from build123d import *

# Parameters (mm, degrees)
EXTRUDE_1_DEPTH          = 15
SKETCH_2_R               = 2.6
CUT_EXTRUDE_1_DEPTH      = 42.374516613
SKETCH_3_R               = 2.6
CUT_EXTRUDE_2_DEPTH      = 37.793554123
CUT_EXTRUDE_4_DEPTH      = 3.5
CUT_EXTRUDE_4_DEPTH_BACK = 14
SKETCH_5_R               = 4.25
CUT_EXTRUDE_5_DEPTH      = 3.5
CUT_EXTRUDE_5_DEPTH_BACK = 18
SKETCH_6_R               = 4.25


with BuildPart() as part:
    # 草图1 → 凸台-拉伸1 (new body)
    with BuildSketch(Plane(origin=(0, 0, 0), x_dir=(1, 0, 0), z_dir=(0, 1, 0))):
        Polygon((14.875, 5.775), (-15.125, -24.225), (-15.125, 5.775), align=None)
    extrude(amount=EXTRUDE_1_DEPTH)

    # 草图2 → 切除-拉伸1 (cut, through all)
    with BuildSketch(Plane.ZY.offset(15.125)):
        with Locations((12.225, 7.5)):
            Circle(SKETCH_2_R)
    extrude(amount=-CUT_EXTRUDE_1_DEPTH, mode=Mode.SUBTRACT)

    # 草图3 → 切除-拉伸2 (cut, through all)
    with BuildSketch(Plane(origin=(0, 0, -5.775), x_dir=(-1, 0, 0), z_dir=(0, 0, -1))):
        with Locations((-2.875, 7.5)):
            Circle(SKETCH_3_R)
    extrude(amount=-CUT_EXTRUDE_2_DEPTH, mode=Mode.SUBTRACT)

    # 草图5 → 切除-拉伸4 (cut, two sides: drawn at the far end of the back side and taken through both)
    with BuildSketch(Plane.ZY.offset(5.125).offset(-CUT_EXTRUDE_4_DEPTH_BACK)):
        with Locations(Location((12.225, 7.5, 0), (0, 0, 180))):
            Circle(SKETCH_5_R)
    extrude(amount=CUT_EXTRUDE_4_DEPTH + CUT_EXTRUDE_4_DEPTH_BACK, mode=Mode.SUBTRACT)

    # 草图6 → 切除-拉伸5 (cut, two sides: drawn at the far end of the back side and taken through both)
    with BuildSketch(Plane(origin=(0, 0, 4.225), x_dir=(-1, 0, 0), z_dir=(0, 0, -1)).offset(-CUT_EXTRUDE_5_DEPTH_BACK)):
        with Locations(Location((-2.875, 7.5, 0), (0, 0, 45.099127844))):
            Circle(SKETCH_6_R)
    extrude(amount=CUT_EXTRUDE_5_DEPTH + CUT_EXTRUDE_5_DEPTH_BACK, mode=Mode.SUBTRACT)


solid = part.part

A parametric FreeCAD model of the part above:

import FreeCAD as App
import Part
import Sketcher

V = App.Vector


def add_polygon(sketch, points):
    """Adds a closed chain of lines whose ends are joined by coincident constraints."""
    first, n = sketch.GeometryCount, len(points)
    for a, b in zip(points, points[1:] + points[:1]):
        sketch.addGeometry(Part.LineSegment(App.Vector(*a, 0), App.Vector(*b, 0)), False)
    for i in range(n):
        sketch.addConstraint(Sketcher.Constraint("Coincident", first + i, 2, first + (i + 1) % n, 1))

doc = App.newDocument("Part")
body = doc.addObject("PartDesign::Body", "Body")

# Sketch on XZ plane
sketch1 = doc.addObject("Sketcher::SketchObject", "Sketch")
body.addObject(sketch1)
sketch1.AttachmentSupport = (doc.XZ_Plane, [""])
sketch1.MapMode = "FlatFace"
add_polygon(sketch1, [(-15, 24), (15, -6), (-15, -6)])  # lines 0-2
sketch1.addConstraint(Sketcher.Constraint("Horizontal", 1))
sketch1.addConstraint(Sketcher.Constraint("Vertical", 2))
sketch1.addConstraint(Sketcher.Constraint("Equal", 1, 2))
sketch1.addConstraint(Sketcher.Constraint("DistanceX", 1, 2, 1, 1, 30.0))
sketch1.addConstraint(Sketcher.Constraint("DistanceX", -1, 1, 0, 2, 14.875))
sketch1.addConstraint(Sketcher.Constraint("DistanceY", 0, 2, -1, 1, 5.775))
pad1 = doc.addObject("PartDesign::Pad", "Pad")
body.addObject(pad1)
pad1.Profile = sketch1
pad1.Length = 15
pad1.Reversed = True

# Sketch on YZ plane
sketch2 = doc.addObject("Sketcher::SketchObject", "Sketch001")
body.addObject(sketch2)
sketch2.AttachmentSupport = (doc.YZ_Plane, [""])
sketch2.MapMode = "FlatFace"
sketch2.AttachmentOffset = App.Placement(V(0, 0, -15.125), App.Rotation())
sketch2.addGeometry(Part.Circle(V(7.5, 12.2, 0), V(0, 0, 1), 2.6), False)
sketch2.addConstraint(Sketcher.Constraint("Diameter", 0, 5.2))
sketch2.addConstraint(Sketcher.Constraint("DistanceX", -1, 1, 0, 3, 7.5))
sketch2.addConstraint(Sketcher.Constraint("DistanceY", -1, 1, 0, 3, 12.225))
pocket1 = doc.addObject("PartDesign::Pocket", "Pocket")
body.addObject(pocket1)
pocket1.Profile = sketch2
pocket1.Type = "ThroughAll"
pocket1.Reversed = True

# Sketch on XY plane
sketch3 = doc.addObject("Sketcher::SketchObject", "Sketch002")
body.addObject(sketch3)
sketch3.AttachmentSupport = (doc.XY_Plane, [""])
sketch3.MapMode = "FlatFace"
sketch3.AttachmentOffset = App.Placement(V(0, 0, -5.775), App.Rotation())
sketch3.addGeometry(Part.Circle(V(2.9, 7.5, 0), V(0, 0, 1), 2.6), False)
sketch3.addConstraint(Sketcher.Constraint("Diameter", 0, 5.2))
sketch3.addConstraint(Sketcher.Constraint("DistanceY", -1, 1, 0, 3, 7.5))
sketch3.addConstraint(Sketcher.Constraint("DistanceX", -1, 1, 0, 3, 2.875))
pocket2 = doc.addObject("PartDesign::Pocket", "Pocket001")
body.addObject(pocket2)
pocket2.Profile = sketch3
pocket2.Type = "ThroughAll"
pocket2.Reversed = True

# Sketch on YZ plane
sketch4 = doc.addObject("Sketcher::SketchObject", "Sketch003")
body.addObject(sketch4)
sketch4.AttachmentSupport = (doc.YZ_Plane, [""])
sketch4.MapMode = "FlatFace"
sketch4.AttachmentOffset = App.Placement(V(0, 0, -5.125), App.Rotation())
sketch4.addGeometry(Part.Circle(V(7.5, 12.2, 0), V(0, 0, 1), 4.2), False)
sketch4.addConstraint(Sketcher.Constraint("Diameter", 0, 8.5))
sketch4.addConstraint(Sketcher.Constraint("DistanceX", -1, 1, 0, 3, 7.5))
sketch4.addConstraint(Sketcher.Constraint("DistanceY", -1, 1, 0, 3, 12.225))
pocket3 = doc.addObject("PartDesign::Pocket", "Pocket002")
body.addObject(pocket3)
pocket3.Profile = sketch4
pocket3.Type = "TwoLengths"
pocket3.Length = 3.5
pocket3.Length2 = 14

# Sketch on XY plane
sketch5 = doc.addObject("Sketcher::SketchObject", "Sketch004")
body.addObject(sketch5)
sketch5.AttachmentSupport = (doc.XY_Plane, [""])
sketch5.MapMode = "FlatFace"
sketch5.AttachmentOffset = App.Placement(V(0, 0, 4.225), App.Rotation())
sketch5.addGeometry(Part.Circle(V(2.9, 7.5, 0), V(0, 0, 1), 4.2), False)
sketch5.addConstraint(Sketcher.Constraint("Diameter", 0, 8.5))
sketch5.addConstraint(Sketcher.Constraint("DistanceY", -1, 1, 0, 3, 7.5))
sketch5.addConstraint(Sketcher.Constraint("DistanceX", -1, 1, 0, 3, 2.875))
pocket4 = doc.addObject("PartDesign::Pocket", "Pocket003")
body.addObject(pocket4)
pocket4.Profile = sketch5
pocket4.Type = "TwoLengths"
pocket4.Length = 3.5
pocket4.Length2 = 18

doc.recompute()
